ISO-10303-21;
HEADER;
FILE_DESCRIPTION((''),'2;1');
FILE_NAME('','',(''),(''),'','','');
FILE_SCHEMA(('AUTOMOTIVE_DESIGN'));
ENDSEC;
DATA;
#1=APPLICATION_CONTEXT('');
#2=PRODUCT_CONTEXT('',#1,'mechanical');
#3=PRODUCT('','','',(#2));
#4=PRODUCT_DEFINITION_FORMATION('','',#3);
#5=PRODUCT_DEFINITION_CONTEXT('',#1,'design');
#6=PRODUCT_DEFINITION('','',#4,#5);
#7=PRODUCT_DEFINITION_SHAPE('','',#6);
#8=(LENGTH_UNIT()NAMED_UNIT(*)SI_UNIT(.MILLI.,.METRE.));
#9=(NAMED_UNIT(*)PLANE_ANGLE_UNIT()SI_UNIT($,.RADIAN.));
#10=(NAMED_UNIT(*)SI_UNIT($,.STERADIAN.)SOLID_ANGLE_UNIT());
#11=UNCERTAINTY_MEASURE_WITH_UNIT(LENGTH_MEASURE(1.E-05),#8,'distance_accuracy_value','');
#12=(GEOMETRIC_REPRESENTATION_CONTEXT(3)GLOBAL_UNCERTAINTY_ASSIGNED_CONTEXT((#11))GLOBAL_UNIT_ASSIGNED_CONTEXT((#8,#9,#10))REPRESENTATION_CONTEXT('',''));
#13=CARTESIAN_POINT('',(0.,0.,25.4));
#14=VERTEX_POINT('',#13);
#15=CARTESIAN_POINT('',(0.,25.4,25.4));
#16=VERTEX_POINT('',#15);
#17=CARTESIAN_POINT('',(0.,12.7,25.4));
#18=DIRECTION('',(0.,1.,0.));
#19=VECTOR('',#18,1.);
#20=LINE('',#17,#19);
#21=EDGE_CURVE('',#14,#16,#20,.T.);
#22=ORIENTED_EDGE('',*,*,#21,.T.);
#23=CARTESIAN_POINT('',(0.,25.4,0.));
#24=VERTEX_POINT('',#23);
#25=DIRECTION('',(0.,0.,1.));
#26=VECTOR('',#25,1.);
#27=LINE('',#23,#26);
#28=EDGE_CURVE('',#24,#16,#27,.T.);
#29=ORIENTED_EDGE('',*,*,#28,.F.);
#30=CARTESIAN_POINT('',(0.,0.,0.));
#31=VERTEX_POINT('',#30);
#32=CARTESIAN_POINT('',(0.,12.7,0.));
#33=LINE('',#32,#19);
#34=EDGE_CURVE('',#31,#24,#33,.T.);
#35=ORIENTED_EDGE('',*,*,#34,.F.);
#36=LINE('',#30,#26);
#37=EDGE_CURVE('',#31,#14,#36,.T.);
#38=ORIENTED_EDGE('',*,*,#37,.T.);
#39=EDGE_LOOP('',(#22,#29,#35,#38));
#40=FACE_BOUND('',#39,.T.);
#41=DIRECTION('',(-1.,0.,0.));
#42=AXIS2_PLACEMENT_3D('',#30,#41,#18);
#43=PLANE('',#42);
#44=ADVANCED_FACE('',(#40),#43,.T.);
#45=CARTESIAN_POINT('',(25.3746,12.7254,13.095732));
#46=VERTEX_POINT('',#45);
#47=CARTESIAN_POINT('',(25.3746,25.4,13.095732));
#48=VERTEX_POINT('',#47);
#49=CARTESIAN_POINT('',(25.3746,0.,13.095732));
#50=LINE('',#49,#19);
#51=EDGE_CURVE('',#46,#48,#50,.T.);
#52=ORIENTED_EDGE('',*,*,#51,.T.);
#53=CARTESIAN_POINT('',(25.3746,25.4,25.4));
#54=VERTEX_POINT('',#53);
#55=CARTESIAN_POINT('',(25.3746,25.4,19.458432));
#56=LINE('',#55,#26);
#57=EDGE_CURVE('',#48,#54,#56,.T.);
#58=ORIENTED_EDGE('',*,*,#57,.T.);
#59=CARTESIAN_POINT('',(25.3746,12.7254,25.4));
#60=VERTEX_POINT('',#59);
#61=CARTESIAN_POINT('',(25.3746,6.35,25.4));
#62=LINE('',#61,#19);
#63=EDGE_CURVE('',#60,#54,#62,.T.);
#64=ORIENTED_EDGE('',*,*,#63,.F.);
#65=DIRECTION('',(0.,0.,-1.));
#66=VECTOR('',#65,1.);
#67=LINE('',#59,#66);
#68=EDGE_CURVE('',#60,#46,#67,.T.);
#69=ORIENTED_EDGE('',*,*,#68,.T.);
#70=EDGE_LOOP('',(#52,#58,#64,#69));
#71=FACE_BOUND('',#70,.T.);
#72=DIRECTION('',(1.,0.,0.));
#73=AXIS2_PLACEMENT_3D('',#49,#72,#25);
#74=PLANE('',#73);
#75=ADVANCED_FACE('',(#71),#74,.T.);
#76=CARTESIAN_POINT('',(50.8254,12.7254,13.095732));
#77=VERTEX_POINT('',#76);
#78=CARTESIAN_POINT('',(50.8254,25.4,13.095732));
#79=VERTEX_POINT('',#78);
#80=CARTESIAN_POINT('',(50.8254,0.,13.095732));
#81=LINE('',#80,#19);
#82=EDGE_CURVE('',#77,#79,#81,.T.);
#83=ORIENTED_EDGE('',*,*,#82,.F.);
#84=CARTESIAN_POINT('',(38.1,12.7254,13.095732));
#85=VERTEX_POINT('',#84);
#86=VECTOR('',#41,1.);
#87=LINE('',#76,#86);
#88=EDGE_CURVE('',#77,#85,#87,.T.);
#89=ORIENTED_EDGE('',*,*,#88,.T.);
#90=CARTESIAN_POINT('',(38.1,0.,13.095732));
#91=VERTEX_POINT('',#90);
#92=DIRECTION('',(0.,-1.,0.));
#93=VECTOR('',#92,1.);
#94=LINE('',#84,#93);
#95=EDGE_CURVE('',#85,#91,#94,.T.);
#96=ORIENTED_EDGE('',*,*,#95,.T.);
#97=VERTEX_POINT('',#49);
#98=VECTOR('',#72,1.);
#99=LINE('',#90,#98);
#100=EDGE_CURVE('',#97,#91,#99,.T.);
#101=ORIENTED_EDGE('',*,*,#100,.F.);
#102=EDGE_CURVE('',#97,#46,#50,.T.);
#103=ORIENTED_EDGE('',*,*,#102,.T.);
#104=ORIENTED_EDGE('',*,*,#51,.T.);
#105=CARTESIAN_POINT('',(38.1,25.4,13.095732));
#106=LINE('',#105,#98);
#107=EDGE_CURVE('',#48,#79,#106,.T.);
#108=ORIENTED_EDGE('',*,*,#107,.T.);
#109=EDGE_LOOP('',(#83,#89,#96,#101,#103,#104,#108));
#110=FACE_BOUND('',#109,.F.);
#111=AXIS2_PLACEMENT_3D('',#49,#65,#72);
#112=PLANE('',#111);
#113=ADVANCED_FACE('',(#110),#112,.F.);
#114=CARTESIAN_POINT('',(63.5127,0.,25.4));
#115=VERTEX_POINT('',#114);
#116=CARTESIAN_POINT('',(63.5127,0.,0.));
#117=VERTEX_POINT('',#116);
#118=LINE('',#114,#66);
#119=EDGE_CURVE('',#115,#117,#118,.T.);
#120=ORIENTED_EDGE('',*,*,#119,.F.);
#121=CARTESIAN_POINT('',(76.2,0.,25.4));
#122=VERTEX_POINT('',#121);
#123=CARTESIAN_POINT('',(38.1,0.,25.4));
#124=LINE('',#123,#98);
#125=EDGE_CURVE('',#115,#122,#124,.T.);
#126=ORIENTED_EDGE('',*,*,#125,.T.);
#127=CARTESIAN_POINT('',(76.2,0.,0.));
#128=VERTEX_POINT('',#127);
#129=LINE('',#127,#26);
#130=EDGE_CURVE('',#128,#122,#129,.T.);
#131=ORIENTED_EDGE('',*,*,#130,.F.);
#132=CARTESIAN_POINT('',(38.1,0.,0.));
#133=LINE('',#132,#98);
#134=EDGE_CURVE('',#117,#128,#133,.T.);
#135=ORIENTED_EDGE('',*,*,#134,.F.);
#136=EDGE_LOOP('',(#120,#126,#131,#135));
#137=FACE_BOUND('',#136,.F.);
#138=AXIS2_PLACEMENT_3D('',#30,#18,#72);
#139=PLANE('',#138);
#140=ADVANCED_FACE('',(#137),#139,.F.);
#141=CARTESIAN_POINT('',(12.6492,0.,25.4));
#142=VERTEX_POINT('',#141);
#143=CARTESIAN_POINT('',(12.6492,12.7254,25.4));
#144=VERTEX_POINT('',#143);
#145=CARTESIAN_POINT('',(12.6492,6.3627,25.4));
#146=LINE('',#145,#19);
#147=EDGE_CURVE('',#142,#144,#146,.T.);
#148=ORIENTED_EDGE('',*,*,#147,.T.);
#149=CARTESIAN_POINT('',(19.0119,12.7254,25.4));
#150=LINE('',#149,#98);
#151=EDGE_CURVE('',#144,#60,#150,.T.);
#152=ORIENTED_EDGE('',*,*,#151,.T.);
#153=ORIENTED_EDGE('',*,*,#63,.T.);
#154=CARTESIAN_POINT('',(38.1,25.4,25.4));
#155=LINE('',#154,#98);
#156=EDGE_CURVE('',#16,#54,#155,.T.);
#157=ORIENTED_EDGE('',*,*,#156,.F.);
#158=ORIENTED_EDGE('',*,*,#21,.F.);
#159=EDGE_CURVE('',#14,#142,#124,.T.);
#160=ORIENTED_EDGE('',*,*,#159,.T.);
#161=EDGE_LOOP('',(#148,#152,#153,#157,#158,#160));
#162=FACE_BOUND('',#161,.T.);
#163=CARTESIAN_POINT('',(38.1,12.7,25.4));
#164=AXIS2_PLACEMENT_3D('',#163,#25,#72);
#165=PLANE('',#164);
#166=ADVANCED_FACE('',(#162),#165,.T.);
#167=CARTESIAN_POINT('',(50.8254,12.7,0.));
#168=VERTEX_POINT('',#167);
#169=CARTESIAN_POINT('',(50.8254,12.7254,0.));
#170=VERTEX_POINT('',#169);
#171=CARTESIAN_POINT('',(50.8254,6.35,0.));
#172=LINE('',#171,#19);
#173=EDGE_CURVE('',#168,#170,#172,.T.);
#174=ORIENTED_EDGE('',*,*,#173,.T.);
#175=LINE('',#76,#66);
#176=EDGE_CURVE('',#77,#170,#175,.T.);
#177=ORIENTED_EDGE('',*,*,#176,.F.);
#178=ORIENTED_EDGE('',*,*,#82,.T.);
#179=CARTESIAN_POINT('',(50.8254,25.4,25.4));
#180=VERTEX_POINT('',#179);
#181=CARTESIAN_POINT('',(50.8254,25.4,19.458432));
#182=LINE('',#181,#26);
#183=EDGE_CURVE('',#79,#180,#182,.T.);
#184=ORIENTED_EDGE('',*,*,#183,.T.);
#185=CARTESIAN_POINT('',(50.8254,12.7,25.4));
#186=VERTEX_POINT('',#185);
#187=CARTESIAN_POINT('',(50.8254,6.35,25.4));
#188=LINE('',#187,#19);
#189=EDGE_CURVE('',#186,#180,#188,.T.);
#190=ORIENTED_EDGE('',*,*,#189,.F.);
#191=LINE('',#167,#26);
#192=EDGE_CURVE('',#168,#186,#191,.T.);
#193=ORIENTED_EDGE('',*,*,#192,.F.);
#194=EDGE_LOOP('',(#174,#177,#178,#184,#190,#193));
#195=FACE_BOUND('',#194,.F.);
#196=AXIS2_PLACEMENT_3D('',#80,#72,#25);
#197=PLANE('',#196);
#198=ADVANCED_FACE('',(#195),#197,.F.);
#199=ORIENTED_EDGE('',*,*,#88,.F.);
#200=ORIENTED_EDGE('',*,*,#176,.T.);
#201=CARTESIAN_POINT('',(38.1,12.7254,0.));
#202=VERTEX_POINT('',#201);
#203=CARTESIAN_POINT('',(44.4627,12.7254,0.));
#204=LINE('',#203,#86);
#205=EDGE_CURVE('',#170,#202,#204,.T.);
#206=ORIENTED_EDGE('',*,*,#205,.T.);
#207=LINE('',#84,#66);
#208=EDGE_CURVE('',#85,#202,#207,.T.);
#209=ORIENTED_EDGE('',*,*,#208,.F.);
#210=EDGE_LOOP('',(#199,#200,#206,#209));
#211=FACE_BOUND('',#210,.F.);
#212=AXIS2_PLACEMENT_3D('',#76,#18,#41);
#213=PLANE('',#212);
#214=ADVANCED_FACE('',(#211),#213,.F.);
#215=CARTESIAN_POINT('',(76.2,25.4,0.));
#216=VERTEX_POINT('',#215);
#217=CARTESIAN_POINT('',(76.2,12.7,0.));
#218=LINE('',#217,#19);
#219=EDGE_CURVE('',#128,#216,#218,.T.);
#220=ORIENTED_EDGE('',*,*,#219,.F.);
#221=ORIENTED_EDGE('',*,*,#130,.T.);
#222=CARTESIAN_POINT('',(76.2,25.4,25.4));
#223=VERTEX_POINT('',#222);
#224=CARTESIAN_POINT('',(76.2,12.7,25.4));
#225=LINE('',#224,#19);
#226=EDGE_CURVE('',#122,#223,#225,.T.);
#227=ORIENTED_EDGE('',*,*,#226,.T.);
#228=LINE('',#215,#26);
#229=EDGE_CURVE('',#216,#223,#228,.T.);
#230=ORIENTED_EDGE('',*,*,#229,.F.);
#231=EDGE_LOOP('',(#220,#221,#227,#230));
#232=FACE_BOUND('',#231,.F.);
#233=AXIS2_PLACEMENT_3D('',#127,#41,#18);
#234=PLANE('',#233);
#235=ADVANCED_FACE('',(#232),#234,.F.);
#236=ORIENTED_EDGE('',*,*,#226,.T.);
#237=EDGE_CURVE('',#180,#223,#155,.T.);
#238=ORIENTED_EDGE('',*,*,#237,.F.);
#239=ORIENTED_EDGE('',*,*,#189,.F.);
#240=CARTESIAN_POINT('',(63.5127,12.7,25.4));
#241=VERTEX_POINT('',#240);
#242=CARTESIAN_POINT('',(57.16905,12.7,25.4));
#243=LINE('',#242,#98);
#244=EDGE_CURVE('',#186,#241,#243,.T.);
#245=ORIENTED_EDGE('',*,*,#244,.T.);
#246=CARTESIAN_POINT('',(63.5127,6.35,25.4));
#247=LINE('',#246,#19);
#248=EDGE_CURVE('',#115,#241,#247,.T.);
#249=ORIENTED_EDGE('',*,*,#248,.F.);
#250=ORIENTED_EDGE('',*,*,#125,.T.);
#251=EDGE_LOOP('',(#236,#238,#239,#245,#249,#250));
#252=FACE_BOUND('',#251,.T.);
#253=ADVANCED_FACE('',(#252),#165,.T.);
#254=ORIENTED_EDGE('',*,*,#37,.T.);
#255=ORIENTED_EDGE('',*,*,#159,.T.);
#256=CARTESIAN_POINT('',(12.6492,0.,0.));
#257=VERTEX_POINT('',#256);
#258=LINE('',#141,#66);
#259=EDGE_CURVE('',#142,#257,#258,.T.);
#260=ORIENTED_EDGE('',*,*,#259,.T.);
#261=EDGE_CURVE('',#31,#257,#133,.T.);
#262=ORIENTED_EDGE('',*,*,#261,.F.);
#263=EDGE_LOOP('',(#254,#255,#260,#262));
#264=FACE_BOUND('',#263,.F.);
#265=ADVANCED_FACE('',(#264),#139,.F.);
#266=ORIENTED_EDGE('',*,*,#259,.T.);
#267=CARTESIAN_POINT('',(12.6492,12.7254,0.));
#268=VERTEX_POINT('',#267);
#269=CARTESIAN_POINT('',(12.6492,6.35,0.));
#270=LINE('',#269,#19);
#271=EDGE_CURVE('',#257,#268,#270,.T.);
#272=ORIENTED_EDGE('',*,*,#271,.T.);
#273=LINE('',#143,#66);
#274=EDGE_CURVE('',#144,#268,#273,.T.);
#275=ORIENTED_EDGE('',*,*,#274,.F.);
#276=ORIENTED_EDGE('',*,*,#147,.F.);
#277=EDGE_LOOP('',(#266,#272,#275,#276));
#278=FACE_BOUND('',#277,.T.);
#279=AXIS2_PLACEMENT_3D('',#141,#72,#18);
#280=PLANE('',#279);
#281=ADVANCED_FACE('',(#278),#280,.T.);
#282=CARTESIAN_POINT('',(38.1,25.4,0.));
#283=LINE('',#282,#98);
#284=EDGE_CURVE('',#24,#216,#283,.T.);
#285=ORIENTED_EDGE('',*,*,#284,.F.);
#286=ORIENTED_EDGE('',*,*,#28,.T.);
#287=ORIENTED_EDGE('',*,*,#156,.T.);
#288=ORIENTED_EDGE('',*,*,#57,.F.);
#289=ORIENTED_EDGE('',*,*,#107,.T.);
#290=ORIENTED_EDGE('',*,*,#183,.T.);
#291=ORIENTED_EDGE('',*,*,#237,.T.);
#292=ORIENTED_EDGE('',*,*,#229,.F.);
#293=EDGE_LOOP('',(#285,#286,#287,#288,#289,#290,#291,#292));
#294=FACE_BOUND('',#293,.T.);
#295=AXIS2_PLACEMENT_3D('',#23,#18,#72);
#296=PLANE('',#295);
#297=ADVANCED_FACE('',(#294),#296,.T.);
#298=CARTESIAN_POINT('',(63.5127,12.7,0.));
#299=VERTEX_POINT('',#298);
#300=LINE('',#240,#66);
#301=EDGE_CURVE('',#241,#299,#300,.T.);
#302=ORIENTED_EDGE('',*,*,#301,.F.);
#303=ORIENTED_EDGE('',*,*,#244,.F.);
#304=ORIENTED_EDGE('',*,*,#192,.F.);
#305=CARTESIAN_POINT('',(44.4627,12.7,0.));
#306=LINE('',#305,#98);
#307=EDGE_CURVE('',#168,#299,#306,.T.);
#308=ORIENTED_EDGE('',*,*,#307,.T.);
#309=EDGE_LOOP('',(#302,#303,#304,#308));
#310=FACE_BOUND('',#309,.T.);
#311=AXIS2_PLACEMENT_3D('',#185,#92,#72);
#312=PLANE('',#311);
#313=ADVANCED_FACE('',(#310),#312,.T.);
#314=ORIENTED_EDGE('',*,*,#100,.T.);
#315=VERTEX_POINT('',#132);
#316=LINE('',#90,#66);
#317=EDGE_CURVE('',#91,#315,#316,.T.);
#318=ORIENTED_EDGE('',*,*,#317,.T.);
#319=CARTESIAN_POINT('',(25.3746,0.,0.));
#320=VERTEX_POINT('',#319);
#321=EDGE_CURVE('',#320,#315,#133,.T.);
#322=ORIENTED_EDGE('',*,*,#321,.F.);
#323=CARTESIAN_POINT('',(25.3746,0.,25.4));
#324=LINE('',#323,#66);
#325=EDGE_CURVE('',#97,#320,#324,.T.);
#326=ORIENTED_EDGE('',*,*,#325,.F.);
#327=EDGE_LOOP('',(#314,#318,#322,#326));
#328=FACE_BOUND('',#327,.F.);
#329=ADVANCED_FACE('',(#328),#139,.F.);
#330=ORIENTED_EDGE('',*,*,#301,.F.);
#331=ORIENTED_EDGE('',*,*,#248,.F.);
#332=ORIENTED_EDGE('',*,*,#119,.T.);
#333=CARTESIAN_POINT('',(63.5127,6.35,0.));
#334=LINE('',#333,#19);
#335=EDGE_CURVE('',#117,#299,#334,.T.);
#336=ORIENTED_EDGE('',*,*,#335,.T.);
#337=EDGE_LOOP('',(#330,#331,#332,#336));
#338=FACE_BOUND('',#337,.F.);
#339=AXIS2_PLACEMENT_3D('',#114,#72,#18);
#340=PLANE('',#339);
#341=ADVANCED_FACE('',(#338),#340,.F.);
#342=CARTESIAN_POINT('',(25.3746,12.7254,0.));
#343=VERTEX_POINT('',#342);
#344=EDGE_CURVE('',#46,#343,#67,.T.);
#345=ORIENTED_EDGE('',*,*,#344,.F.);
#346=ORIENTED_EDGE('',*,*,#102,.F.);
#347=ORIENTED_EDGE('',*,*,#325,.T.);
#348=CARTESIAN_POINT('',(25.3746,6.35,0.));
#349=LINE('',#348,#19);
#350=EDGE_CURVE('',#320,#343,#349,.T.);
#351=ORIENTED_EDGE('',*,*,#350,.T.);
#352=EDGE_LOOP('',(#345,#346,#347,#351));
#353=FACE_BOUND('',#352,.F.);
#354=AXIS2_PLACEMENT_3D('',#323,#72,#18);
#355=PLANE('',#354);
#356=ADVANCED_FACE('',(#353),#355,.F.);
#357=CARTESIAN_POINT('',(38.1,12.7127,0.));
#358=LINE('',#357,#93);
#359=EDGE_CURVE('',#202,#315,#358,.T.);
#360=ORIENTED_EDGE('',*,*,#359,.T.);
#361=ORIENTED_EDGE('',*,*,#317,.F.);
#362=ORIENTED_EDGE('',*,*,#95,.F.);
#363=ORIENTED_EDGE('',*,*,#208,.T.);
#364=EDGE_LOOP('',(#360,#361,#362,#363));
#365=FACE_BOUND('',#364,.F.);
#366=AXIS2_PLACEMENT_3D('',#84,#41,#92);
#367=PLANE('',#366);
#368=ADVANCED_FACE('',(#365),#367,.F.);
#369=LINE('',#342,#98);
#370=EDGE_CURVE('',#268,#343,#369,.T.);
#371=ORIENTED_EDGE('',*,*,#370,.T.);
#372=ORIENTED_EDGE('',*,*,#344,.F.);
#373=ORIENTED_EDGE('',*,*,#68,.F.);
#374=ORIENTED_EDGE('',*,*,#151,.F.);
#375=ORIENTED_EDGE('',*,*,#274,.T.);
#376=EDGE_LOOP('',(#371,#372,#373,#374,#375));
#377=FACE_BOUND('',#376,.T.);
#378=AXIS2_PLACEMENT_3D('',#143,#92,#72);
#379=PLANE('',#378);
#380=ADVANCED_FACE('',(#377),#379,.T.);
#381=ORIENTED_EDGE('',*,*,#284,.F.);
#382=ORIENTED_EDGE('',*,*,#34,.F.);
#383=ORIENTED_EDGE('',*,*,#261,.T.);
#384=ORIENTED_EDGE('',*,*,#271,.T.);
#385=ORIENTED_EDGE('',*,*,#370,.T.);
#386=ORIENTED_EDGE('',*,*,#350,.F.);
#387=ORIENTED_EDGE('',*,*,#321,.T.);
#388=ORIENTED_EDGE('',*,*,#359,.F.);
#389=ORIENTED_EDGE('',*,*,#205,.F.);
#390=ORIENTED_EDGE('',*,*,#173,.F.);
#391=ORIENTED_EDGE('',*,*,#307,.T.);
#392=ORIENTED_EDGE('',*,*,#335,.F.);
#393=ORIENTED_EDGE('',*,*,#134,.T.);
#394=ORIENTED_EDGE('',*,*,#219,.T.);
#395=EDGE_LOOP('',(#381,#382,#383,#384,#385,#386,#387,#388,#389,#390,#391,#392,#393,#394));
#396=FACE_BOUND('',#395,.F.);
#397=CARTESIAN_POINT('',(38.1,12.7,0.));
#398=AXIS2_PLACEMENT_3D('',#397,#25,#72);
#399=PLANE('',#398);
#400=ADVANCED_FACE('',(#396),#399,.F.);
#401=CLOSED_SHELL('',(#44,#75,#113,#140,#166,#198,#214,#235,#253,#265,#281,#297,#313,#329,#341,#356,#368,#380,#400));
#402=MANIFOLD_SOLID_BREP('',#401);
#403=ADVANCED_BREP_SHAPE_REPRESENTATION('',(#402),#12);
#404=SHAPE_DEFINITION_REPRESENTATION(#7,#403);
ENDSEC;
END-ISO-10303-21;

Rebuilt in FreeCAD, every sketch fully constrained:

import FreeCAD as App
import Part
import Sketcher
Q = App.Units.Quantity


def add_polygon(sketch, points):
    """Adds a closed chain of lines whose ends are joined by coincident constraints."""
    first, n = sketch.GeometryCount, len(points)
    for a, b in zip(points, points[1:] + points[:1]):
        sketch.addGeometry(Part.LineSegment(App.Vector(*a, 0), App.Vector(*b, 0)), False)
    for i in range(n):
        sketch.addConstraint(Sketcher.Constraint("Coincident", first + i, 2, first + (i + 1) % n, 1))

doc = App.newDocument("Part")
body = doc.addObject("PartDesign::Body", "Body")

# Sketch on XY plane
sketch1 = doc.addObject("Sketcher::SketchObject", "Sketch")
body.addObject(sketch1)
sketch1.AttachmentSupport = (doc.XY_Plane, [""])
sketch1.MapMode = "FlatFace"
add_polygon(sketch1, [(0, 25.4), (0, 0), (76.2, 0), (76.2, 25.4)])  # lines 0-3
sketch1.addConstraint([
    Sketcher.Constraint("Vertical", 0),
    Sketcher.Constraint("Horizontal", 1),
    Sketcher.Constraint("Vertical", 2),
    Sketcher.Constraint("Horizontal", 3),
    Sketcher.Constraint("Coincident", 0, 2, -1, 1),
    Sketcher.Constraint("DistanceX", 1, 1, 1, 2, Q("3 in")),
    Sketcher.Constraint("DistanceY", 0, 2, 0, 1, Q("1 in")),
])
pad1 = doc.addObject("PartDesign::Pad", "Pad")
body.addObject(pad1)
pad1.Profile = sketch1
pad1.Length = Q("1 in")

# Sketch on XZ plane
sketch2 = doc.addObject("Sketcher::SketchObject", "Sketch001")
body.addObject(sketch2)
sketch2.AttachmentSupport = (doc.XZ_Plane, [""])
sketch2.MapMode = "FlatFace"
add_polygon(sketch2, [(25.3746, 25.821132), (25.3746, 13.095732), (50.8254, 13.095732), (50.8254, 25.821132)])  # lines 0-3
sketch2.addConstraint([
    Sketcher.Constraint("Vertical", 0),
    Sketcher.Constraint("Horizontal", 1),
    Sketcher.Constraint("Vertical", 2),
    Sketcher.Constraint("Horizontal", 3),
    Sketcher.Constraint("DistanceX", 1, 1, 1, 2, Q("1.002 in")),
    Sketcher.Constraint("DistanceY", 0, 2, 0, 1, Q("0.501 in")),
    Sketcher.Constraint("DistanceX", -1, 1, 0, 2, Q("0.999 in")),
    Sketcher.Constraint("DistanceY", -1, 1, 0, 2, Q("13.095732 mm")),
])
pocket1 = doc.addObject("PartDesign::Pocket", "Pocket")
body.addObject(pocket1)
pocket1.Profile = sketch2
pocket1.Length = Q("1 in")

# Sketch on XY plane
sketch3 = doc.addObject("Sketcher::SketchObject", "Sketch002")
body.addObject(sketch3)
sketch3.AttachmentSupport = (doc.XY_Plane, [""])
sketch3.MapMode = "FlatFace"
sketch3.AttachmentOffset = App.Placement(App.Vector(0, 0, 1 * 25.4), App.Rotation())
add_polygon(sketch3, [(12.6492, 12.7254), (12.6492, 0), (25.3746, 0), (25.3746, 12.7254)])  # lines 0-3
sketch3.addConstraint([
    Sketcher.Constraint("Vertical", 0),
    Sketcher.Constraint("Horizontal", 1),
    Sketcher.Constraint("Vertical", 2),
    Sketcher.Constraint("Horizontal", 3),
    Sketcher.Constraint("PointOnObject", 0, 2, -1),
    Sketcher.Constraint("Equal", 3, 0),
    Sketcher.Constraint("DistanceX", 1, 1, 1, 2, Q("0.501 in")),
    Sketcher.Constraint("DistanceX", -1, 1, 0, 2, Q("0.498 in")),
])
pocket2 = doc.addObject("PartDesign::Pocket", "Pocket001")
body.addObject(pocket2)
pocket2.Profile = sketch3
pocket2.Length = Q("1.01 in")

# Sketch on XY plane
sketch4 = doc.addObject("Sketcher::SketchObject", "Sketch003")
body.addObject(sketch4)
sketch4.AttachmentSupport = (doc.XY_Plane, [""])
sketch4.MapMode = "FlatFace"
sketch4.AttachmentOffset = App.Placement(App.Vector(0, 0, 1 * 25.4), App.Rotation())
add_polygon(sketch4, [(50.8254, 12.7), (50.8254, 0), (63.5127, 0), (63.5127, 12.7)])  # lines 0-3
sketch4.addConstraint([
    Sketcher.Constraint("Vertical", 0),
    Sketcher.Constraint("Horizontal", 1),
    Sketcher.Constraint("Vertical", 2),
    Sketcher.Constraint("Horizontal", 3),
    Sketcher.Constraint("PointOnObject", 0, 2, -1),
    Sketcher.Constraint("DistanceY", 0, 2, 0, 1, Q("0.5 in")),
    Sketcher.Constraint("DistanceX", 1, 1, 1, 2, Q("0.4995 in")),
    Sketcher.Constraint("DistanceX", -1, 1, 0, 2, Q("2.001 in")),
])
pocket3 = doc.addObject("PartDesign::Pocket", "Pocket002")
body.addObject(pocket3)
pocket3.Profile = sketch4
pocket3.Length = Q("1.01 in")

# Sketch on XY plane
sketch5 = doc.addObject("Sketcher::SketchObject", "Sketch004")
body.addObject(sketch5)
sketch5.AttachmentSupport = (doc.XY_Plane, [""])
sketch5.MapMode = "FlatFace"
sketch5.AttachmentOffset = App.Placement(App.Vector(0, 0, 13.095732), App.Rotation())
add_polygon(sketch5, [(38.1, 0), (50.8254, 0), (50.8254, 12.7254), (38.1, 12.7254)])  # lines 0-3
sketch5.addConstraint([
    Sketcher.Constraint("Horizontal", 0),
    Sketcher.Constraint("Vertical", 1),
    Sketcher.Constraint("Horizontal", 2),
    Sketcher.Constraint("Vertical", 3),
    Sketcher.Constraint("PointOnObject", 0, 2, -1),
    Sketcher.Constraint("Equal", 2, 1),
    Sketcher.Constraint("DistanceX", -1, 1, 2, 2, Q("1.5 in")),
    Sketcher.Constraint("DistanceX", 0, 1, 0, 2, Q("0.501 in")),
])
pocket4 = doc.addObject("PartDesign::Pocket", "Pocket003")
body.addObject(pocket4)
pocket4.Profile = sketch5
pocket4.Length = Q("1 in")

doc.recompute()
